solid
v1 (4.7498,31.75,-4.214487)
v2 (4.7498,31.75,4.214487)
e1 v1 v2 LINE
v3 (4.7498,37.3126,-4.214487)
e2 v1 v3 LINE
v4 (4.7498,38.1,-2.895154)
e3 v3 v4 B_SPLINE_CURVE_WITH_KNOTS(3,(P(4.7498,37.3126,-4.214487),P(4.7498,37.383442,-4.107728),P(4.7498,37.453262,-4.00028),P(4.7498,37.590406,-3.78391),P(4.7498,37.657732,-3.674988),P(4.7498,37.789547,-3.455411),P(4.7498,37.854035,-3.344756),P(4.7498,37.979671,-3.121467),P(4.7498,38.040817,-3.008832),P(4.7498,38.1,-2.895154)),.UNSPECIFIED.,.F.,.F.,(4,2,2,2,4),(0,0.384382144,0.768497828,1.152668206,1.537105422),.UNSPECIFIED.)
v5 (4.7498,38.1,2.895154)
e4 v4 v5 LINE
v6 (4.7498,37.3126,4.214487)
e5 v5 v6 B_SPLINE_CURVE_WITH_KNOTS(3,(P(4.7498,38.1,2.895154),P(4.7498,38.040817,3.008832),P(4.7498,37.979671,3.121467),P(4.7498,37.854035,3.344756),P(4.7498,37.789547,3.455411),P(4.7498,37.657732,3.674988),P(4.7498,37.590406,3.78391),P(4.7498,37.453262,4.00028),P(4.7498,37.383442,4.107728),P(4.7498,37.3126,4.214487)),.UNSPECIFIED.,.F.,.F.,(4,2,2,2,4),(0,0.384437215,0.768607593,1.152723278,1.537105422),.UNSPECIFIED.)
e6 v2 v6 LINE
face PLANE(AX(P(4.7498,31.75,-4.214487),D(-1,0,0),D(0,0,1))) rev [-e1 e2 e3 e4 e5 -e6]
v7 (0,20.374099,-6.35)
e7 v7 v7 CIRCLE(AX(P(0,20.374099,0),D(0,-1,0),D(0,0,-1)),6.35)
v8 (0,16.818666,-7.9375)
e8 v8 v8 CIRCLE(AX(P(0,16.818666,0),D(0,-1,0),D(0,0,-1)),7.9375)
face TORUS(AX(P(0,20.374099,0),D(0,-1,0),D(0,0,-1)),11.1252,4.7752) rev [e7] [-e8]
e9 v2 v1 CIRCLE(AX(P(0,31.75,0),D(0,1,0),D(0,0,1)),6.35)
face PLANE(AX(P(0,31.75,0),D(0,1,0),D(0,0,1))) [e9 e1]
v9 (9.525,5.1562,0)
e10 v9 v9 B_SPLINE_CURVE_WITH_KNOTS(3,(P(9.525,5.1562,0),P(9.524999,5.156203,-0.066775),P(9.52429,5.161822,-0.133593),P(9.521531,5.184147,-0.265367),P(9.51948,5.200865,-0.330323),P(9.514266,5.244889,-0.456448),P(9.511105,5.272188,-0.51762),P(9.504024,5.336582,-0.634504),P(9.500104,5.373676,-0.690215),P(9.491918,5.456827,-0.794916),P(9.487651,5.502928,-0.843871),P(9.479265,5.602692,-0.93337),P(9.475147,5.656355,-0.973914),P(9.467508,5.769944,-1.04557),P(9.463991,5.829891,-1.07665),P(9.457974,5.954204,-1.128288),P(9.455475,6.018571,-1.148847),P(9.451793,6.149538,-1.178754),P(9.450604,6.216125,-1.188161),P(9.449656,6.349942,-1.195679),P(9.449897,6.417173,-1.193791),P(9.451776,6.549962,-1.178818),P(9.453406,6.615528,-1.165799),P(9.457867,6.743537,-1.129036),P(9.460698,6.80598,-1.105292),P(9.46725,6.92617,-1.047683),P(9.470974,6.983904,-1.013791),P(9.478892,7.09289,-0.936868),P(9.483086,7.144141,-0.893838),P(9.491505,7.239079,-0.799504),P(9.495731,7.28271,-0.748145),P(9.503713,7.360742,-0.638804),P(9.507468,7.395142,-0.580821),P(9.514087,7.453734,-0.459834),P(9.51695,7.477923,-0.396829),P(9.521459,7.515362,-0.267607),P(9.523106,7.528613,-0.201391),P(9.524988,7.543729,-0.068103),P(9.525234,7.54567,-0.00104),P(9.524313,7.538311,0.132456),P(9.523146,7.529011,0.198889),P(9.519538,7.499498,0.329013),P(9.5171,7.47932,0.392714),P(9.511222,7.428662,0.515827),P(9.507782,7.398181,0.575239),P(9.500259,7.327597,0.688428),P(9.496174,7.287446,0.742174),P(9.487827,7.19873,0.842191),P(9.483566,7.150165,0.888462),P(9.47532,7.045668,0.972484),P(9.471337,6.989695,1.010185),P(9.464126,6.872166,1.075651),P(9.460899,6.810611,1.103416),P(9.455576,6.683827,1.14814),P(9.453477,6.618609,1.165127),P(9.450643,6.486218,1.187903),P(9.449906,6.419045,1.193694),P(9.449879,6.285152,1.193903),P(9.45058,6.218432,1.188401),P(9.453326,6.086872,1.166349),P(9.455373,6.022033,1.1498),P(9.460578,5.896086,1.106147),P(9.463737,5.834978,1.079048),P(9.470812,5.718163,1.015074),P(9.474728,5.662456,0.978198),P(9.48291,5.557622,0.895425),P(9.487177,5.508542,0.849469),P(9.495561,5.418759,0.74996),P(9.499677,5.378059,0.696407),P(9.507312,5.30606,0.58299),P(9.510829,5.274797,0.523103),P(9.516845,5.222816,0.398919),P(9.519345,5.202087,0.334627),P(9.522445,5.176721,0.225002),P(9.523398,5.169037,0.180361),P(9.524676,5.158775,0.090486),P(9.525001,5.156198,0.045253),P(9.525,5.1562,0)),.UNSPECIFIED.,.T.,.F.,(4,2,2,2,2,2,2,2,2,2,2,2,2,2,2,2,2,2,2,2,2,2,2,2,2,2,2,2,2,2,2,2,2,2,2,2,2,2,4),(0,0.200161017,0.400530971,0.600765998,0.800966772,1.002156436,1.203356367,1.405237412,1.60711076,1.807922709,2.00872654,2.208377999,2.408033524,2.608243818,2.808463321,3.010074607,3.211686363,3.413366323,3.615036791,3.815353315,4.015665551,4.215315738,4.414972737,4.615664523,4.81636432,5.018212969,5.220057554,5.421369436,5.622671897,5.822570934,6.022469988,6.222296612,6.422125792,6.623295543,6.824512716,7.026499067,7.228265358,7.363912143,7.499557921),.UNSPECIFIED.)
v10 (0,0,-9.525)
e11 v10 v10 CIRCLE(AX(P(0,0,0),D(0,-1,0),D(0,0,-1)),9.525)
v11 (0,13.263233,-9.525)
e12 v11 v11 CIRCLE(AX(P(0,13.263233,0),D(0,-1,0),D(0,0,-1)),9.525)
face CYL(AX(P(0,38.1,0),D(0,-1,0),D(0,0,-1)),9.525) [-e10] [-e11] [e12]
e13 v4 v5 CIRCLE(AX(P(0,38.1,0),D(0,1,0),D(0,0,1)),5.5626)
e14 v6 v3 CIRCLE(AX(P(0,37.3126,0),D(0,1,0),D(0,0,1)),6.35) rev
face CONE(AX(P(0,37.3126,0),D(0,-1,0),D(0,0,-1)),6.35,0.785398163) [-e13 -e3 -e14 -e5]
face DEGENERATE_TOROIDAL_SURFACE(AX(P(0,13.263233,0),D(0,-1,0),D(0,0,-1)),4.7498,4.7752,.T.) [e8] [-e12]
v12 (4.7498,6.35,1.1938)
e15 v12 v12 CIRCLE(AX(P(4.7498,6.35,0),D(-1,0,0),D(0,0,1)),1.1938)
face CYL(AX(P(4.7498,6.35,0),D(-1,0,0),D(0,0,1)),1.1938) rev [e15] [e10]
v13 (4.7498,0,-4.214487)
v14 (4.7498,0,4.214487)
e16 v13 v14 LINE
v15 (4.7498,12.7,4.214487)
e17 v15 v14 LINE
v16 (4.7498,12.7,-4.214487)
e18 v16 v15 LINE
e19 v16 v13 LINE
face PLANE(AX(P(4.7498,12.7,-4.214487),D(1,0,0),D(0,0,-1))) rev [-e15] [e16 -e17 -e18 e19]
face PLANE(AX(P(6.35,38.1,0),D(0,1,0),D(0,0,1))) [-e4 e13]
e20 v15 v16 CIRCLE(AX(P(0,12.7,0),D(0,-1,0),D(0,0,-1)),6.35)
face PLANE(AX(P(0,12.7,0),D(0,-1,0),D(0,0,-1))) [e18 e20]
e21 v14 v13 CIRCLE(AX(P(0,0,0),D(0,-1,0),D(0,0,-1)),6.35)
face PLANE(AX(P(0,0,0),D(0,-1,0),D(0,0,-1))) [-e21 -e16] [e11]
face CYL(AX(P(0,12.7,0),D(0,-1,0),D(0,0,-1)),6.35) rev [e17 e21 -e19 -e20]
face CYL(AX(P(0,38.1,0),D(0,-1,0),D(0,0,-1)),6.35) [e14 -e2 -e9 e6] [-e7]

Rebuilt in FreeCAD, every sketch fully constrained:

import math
import FreeCAD as App
import Part
import Sketcher
Q = App.Units.Quantity


def edges_at(feature, points):
    """Names of the edges that pass closest to the given points."""
    edges = feature.Shape.Edges
    near = lambda p: min(range(len(edges)), key=lambda i: edges[i].distToShape(Part.Vertex(*p))[0])
    return sorted({f"Edge{near(p) + 1}" for p in points})

doc = App.newDocument("Part")
params = doc.addObject("Spreadsheet::Sheet", "Params")
for row, (alias, value) in enumerate([
    ("sketch1_height", "1.5 in"),
    ("sketch1_radius", "0.188 in"),
    ("sketch1_width", "0.25 in"),
    ("sketch1_width2", "0.375 in"),
    ("revolution_angle", "360 deg"),
    ("sketch2_radius", "0.25 in"),
    ("pocket1_length", "0.25 in"),
    ("sketch3_radius", "0.25 in"),
    ("pocket2_length", "0.5 in"),
    ("sketch4_diameter", "0.094 in"),
    ("hole_diameter", "0.094 in"),
    ("hole_depth", "0.188 in"),
    ("chamfer_size", "0.031 in"),
], start=1):
    params.set(f"A{row}", alias)
    params.set(f"B{row}", "=" + value)
    params.setAlias(f"B{row}", alias)

body = doc.addObject("PartDesign::Body", "Body")

# Sketch on XY plane
sketch1 = body.newObject("Sketcher::SketchObject", "Sketch")
sketch1.AttachmentSupport = (doc.getObject("XY_Plane"), [""])
sketch1.MapMode = "FlatFace"
sketch1.addGeometry(Part.LineSegment(App.Vector(6.3, 38.1, 0), App.Vector(0, 38.1, 0)), False)
sketch1.addGeometry(Part.LineSegment(App.Vector(0, 38.1, 0), App.Vector(0, 0, 0)), False)
sketch1.addGeometry(Part.LineSegment(App.Vector(0, 0, 0), App.Vector(9.5, 0, 0)), False)
sketch1.addGeometry(Part.LineSegment(App.Vector(9.5, 0, 0), App.Vector(9.5, 13.3, 0)), False)
sketch1.addGeometry(Part.ArcOfCircle(Part.Circle(App.Vector(4.7, 13.3, 0), App.Vector(0, 0, 1), 4.8), math.radians(0), math.radians(48)), False)
sketch1.addGeometry(Part.ArcOfCircle(Part.Circle(App.Vector(11.1, 20.4, 0), App.Vector(0, 0, 1), 4.8), math.radians(180), math.radians(228)), False)
sketch1.addGeometry(Part.LineSegment(App.Vector(6.3, 20.4, 0), App.Vector(6.3, 38.1, 0)), False)
sketch1.addConstraint(Sketcher.Constraint("Coincident", 0, 2, 1, 1))
sketch1.addConstraint(Sketcher.Constraint("Coincident", 1, 2, 2, 1))
sketch1.addConstraint(Sketcher.Constraint("Coincident", 2, 2, 3, 1))
sketch1.addConstraint(Sketcher.Constraint("Tangent", 3, 2, 4, 1))
sketch1.addConstraint(Sketcher.Constraint("Tangent", 4, 2, 5, 2))
sketch1.addConstraint(Sketcher.Constraint("Tangent", 5, 1, 6, 1))
sketch1.addConstraint(Sketcher.Constraint("Coincident", 6, 2, 0, 1))
sketch1.addConstraint(Sketcher.Constraint("Horizontal", 0))
sketch1.addConstraint(Sketcher.Constraint("Vertical", 1))
sketch1.addConstraint(Sketcher.Constraint("Horizontal", 2))
sketch1.addConstraint(Sketcher.Constraint("Vertical", 3))
sketch1.addConstraint(Sketcher.Constraint("Vertical", 6))
sketch1.addConstraint(Sketcher.Constraint("Coincident", 1, 2, -1, 1))
sketch1.addConstraint(Sketcher.Constraint("Equal", 4, 5))
sketch1.addConstraint(Sketcher.Constraint("DistanceY", 1, 2, 1, 1, Q("1.5 in")))
sketch1.addConstraint(Sketcher.Constraint("Radius", 4, Q("0.188 in")))
sketch1.addConstraint(Sketcher.Constraint("DistanceX", 0, 2, 0, 1, Q("0.25 in")))
sketch1.addConstraint(Sketcher.Constraint("DistanceX", 2, 1, 2, 2, Q("0.375 in")))
sketch1.addConstraint(Sketcher.Constraint("DistanceY", 6, 1, 6, 2, Q("17.725901 mm")))
sketch1.setExpression("Constraints[14]", "Params.sketch1_height")
sketch1.setExpression("Constraints[15]", "Params.sketch1_radius")
sketch1.setExpression("Constraints[16]", "Params.sketch1_width")
sketch1.setExpression("Constraints[17]", "Params.sketch1_width2")
revolution = body.newObject("PartDesign::Revolution", "Revolution")
revolution.Profile = sketch1
revolution.ReferenceAxis = (sketch1, ["V_Axis"])
revolution.setExpression("Angle", "Params.revolution_angle")

# Sketch on XZ plane
sketch2 = body.newObject("Sketcher::SketchObject", "Sketch001")
sketch2.AttachmentSupport = (doc.getObject("XZ_Plane"), [""])
sketch2.MapMode = "FlatFace"
sketch2.AttachmentOffset = App.Placement(App.Vector(0, 0, -1.5 * 25.4), App.Rotation())
sketch2.addGeometry(Part.LineSegment(App.Vector(5, -4, 0), App.Vector(5, 4, 0)), False)
sketch2.addGeometry(Part.ArcOfCircle(Part.Circle(App.Vector(0, 0, 0), App.Vector(0, 0, 1), 6), math.radians(-42), math.radians(42)), False)
sketch2.addConstraint(Sketcher.Constraint("Coincident", 0, 1, 1, 1))
sketch2.addConstraint(Sketcher.Constraint("Coincident", 1, 2, 0, 2))
sketch2.addConstraint(Sketcher.Constraint("Vertical", 0))
sketch2.addConstraint(Sketcher.Constraint("Coincident", 1, 3, -1, 1))
sketch2.addConstraint(Sketcher.Constraint("Radius", 1, Q("0.25 in")))
sketch2.addConstraint(Sketcher.Constraint("DistanceX", -1, 1, 0, 1, Q("0.187 in")))
sketch2.setExpression("Constraints[4]", "Params.sketch2_radius")
pocket1 = body.newObject("PartDesign::Pocket", "Pocket")
pocket1.Profile = sketch2
pocket1.setExpression("Length", "Params.pocket1_length")
pocket1.Reversed = True

# Sketch on XZ plane
sketch3 = body.newObject("Sketcher::SketchObject", "Sketch002")
sketch3.AttachmentSupport = (doc.getObject("XZ_Plane"), [""])
sketch3.MapMode = "FlatFace"
sketch3.AttachmentOffset = App.Placement(App.Vector(0, 0, -0.5 * 25.4), App.Rotation())
sketch3.addGeometry(Part.LineSegment(App.Vector(5, -4, 0), App.Vector(5, 4, 0)), False)
sketch3.addGeometry(Part.ArcOfCircle(Part.Circle(App.Vector(0, 0, 0), App.Vector(0, 0, 1), 6), math.radians(42), math.radians(318)), False)
sketch3.addConstraint(Sketcher.Constraint("Coincident", 0, 1, 1, 2))
sketch3.addConstraint(Sketcher.Constraint("Coincident", 1, 1, 0, 2))
sketch3.addConstraint(Sketcher.Constraint("Vertical", 0))
sketch3.addConstraint(Sketcher.Constraint("Coincident", 1, 3, -1, 1))
sketch3.addConstraint(Sketcher.Constraint("Radius", 1, Q("0.25 in")))
sketch3.addConstraint(Sketcher.Constraint("DistanceX", -1, 1, 0, 1, Q("0.187 in")))
sketch3.setExpression("Constraints[4]", "Params.sketch3_radius")
pocket2 = body.newObject("PartDesign::Pocket", "Pocket001")
pocket2.Profile = sketch3
pocket2.setExpression("Length", "Params.pocket2_length")
pocket2.Reversed = True

# Sketch on YZ plane
sketch4 = body.newObject("Sketcher::SketchObject", "Sketch003")
sketch4.AttachmentSupport = (doc.getObject("YZ_Plane"), [""])
sketch4.MapMode = "FlatFace"
sketch4.AttachmentOffset = App.Placement(App.Vector(0, 0, 0.187 * 25.4), App.Rotation())
sketch4.addGeometry(Part.Circle(App.Vector(6.3, 0, 0), App.Vector(0, 0, 1), 1.2), False)
sketch4.addConstraint(Sketcher.Constraint("PointOnObject", 0, 3, -1))
sketch4.addConstraint(Sketcher.Constraint("Diameter", 0, Q("0.094 in")))
sketch4.addConstraint(Sketcher.Constraint("DistanceX", -1, 1, 0, 3, Q("0.25 in")))
sketch4.setExpression("Constraints[1]", "Params.sketch4_diameter")
doc.recompute()
hole = body.newObject("PartDesign::Hole", "Hole")
hole.Profile = sketch4
hole.ThreadType = "None"
hole.setExpression("Diameter", "Params.hole_diameter")
hole.DepthType = "Dimension"
hole.setExpression("Depth", "Params.hole_depth")
hole.DrillPoint = "Flat"
hole.Reversed = True
doc.recompute()

chamfer = body.newObject("PartDesign::Chamfer", "Chamfer")
chamfer.Base = (hole, edges_at(hole, [(-5.792, 38.1, 2.604)]))
chamfer.setExpression("Size", "Params.chamfer_size")

doc.recompute()
